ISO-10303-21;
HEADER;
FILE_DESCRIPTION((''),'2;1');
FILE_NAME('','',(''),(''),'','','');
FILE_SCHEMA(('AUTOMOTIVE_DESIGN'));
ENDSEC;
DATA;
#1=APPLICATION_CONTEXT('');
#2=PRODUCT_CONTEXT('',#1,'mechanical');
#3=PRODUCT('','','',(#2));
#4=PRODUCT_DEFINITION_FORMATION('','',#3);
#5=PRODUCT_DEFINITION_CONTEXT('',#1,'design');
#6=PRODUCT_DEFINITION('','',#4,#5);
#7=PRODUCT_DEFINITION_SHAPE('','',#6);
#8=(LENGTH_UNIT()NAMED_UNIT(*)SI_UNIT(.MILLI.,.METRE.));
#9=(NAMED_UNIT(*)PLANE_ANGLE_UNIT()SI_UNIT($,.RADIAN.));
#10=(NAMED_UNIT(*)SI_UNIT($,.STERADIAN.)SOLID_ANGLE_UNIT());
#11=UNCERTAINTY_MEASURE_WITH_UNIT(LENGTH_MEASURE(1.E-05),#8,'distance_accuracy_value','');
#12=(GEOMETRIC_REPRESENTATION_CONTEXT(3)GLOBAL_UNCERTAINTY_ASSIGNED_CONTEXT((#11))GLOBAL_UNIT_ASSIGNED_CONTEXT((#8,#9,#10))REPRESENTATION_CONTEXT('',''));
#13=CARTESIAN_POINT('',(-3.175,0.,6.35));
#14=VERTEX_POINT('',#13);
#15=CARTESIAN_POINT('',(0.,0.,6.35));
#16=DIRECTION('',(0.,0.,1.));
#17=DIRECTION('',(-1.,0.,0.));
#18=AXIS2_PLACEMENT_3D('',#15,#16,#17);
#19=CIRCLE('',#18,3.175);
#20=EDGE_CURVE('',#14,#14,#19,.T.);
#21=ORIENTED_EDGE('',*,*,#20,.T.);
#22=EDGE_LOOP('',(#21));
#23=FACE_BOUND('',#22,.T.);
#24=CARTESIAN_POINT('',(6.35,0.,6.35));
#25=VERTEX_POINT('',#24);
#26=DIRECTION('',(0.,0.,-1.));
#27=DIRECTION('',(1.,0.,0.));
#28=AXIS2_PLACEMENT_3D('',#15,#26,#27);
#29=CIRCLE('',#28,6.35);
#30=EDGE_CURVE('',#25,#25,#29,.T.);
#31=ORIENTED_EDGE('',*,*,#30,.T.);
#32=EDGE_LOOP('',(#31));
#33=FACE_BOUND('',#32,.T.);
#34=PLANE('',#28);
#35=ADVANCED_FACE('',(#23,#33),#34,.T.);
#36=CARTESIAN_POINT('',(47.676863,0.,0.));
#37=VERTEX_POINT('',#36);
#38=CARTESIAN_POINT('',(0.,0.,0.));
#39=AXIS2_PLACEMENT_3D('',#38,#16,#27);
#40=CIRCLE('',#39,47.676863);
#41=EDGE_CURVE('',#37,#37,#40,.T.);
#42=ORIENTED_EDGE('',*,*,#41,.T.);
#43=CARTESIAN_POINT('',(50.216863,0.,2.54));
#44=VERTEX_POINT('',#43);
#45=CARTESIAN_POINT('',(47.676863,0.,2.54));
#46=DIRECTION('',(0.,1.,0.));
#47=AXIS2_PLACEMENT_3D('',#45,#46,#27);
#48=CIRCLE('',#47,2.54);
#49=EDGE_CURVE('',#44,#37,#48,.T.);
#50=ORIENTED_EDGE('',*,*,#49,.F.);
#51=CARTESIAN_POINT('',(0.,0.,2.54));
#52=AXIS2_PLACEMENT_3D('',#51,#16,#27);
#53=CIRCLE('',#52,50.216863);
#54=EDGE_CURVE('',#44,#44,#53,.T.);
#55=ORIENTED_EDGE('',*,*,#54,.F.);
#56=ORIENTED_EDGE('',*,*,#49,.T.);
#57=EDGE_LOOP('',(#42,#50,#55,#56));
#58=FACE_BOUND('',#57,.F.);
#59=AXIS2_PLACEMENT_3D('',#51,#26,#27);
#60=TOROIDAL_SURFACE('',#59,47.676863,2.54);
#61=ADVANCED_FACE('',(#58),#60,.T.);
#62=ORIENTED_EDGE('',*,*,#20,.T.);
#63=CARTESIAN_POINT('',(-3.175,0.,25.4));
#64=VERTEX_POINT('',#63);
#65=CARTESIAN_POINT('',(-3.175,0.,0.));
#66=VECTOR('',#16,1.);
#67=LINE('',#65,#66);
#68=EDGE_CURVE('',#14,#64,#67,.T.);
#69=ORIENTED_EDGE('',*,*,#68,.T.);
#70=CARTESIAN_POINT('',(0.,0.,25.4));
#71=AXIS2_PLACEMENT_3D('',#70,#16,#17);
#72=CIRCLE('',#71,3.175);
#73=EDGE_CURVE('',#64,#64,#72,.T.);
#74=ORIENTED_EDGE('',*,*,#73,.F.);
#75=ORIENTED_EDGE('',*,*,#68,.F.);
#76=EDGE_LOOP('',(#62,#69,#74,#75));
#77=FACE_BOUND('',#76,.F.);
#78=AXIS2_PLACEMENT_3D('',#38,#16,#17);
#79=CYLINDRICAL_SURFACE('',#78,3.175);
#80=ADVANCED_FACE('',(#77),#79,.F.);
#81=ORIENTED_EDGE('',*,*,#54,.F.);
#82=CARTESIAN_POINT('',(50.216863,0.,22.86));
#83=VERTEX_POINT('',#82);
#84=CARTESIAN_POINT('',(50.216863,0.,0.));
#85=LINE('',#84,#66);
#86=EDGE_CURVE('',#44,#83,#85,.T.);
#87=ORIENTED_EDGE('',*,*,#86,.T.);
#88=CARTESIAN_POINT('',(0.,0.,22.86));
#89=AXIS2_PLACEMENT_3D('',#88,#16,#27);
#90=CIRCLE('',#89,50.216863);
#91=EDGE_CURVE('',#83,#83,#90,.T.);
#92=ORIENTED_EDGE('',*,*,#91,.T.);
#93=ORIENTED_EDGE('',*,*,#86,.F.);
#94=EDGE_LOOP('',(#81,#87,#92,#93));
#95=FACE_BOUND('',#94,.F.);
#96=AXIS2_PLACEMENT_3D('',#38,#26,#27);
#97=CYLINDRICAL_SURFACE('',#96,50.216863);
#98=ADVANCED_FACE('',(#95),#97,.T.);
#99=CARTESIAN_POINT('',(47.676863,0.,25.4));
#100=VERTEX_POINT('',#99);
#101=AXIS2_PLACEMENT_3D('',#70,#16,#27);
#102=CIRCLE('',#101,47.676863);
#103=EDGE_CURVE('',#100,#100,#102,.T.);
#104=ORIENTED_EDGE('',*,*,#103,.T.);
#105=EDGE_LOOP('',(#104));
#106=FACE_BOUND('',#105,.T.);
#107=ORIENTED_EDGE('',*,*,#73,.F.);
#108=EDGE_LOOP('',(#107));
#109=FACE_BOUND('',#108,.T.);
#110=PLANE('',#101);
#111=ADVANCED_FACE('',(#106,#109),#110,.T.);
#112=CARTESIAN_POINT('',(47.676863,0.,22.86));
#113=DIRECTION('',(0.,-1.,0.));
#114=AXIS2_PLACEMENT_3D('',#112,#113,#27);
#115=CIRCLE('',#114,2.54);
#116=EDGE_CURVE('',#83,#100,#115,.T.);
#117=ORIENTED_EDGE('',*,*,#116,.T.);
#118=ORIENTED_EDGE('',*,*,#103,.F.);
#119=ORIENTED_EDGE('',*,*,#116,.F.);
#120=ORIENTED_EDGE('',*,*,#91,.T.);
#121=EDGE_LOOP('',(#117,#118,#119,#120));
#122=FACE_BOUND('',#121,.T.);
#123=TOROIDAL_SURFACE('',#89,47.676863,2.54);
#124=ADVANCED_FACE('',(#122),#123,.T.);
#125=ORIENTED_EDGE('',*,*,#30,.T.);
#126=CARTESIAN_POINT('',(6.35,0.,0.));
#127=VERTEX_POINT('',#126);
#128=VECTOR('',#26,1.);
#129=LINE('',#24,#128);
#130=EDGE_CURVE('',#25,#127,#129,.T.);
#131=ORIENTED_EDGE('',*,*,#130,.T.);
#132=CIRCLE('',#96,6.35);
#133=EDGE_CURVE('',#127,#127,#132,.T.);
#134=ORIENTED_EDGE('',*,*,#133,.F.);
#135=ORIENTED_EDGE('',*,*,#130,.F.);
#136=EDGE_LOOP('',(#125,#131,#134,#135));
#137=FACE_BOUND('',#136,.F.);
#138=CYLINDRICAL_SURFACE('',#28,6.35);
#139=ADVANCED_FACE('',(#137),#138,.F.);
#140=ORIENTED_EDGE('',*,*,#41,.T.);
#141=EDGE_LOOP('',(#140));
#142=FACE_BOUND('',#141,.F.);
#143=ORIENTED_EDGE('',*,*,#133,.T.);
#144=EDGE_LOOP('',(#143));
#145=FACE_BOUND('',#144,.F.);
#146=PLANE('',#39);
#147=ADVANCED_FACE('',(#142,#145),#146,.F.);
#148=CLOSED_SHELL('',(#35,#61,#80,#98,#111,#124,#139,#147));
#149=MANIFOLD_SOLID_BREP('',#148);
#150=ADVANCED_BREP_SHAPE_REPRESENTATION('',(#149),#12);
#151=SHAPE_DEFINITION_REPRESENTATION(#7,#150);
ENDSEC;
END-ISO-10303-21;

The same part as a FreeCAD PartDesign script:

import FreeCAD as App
import Part
import Sketcher
Q = App.Units.Quantity


def edges_at(feature, points):
    """Names of the edges that pass closest to the given points."""
    edges = feature.Shape.Edges
    near = lambda p: min(range(len(edges)), key=lambda i: edges[i].distToShape(Part.Vertex(*p))[0])
    return sorted({f"Edge{near(p) + 1}" for p in points})

doc = App.newDocument("Part")
body = doc.addObject("PartDesign::Body", "Body")

# Sketch on XY plane
sketch1 = body.newObject("Sketcher::SketchObject", "Sketch")
sketch1.AttachmentSupport = (doc.getObject("XY_Plane"), [""])
sketch1.MapMode = "FlatFace"
sketch1.addGeometry(Part.Circle(App.Vector(0, 0, 0), App.Vector(0, 0, 1), 50), False)
sketch1.addConstraint([
    Sketcher.Constraint("Coincident", 0, 3, -1, 1),
    Sketcher.Constraint("Diameter", 0, Q("100.433726 mm")),
])
pad1 = body.newObject("PartDesign::Pad", "Pad")
pad1.Profile = sketch1
pad1.Length = Q("1 in")
doc.recompute()

fillet = body.newObject("PartDesign::Fillet", "Fillet")
fillet.Base = (pad1, edges_at(pad1, [(-50.217, 0, 25.4)]))
fillet.Radius = Q("0.1 in")
doc.recompute()

fillet2 = body.newObject("PartDesign::Fillet", "Fillet001")
fillet2.Base = (fillet, edges_at(fillet, [(-50.217, 0, 0)]))
fillet2.Radius = Q("0.1 in")

# Sketch on XY plane
sketch2 = body.newObject("Sketcher::SketchObject", "Sketch001")
sketch2.AttachmentSupport = (doc.getObject("XY_Plane"), [""])
sketch2.MapMode = "FlatFace"
sketch2.addGeometry(Part.Circle(App.Vector(0, 0, 0), App.Vector(0, 0, 1), 3.2), False)
sketch2.addConstraint([
    Sketcher.Constraint("Coincident", 0, 3, -1, 1),
    Sketcher.Constraint("Diameter", 0, Q("0.25 in")),
])
doc.recompute()
hole = body.newObject("PartDesign::Hole", "Hole")
hole.Profile = sketch2
hole.ThreadType = "None"
hole.Diameter = Q("0.25 in")
hole.DepthType = "ThroughAll"
hole.HoleCutType = "Counterbore"
hole.HoleCutDiameter = Q("0.5 in")
hole.HoleCutDepth = Q("0.25 in")
hole.Reversed = True

doc.recompute()
